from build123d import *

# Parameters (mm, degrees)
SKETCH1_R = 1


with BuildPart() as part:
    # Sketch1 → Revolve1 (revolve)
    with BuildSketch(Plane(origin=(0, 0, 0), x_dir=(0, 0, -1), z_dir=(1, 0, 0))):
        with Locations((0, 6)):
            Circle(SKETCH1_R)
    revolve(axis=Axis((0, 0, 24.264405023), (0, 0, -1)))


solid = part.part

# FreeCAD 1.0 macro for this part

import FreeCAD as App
import Part
import Sketcher

V = App.Vector
Q = App.Units.Quantity

doc = App.newDocument("Part")
body = doc.addObject("PartDesign::Body", "Body")

# Sketch on YZ plane
sketch1 = body.newObject("Sketcher::SketchObject", "Sketch")
sketch1.AttachmentSupport = (doc.getObject("YZ_Plane"), [""])
sketch1.MapMode = "FlatFace"
sketch1.addGeometry(Part.Circle(V(6, 0, 0), V(0, 0, 1), 1), False)
sketch1.addConstraint([
    Sketcher.Constraint("PointOnObject", 0, 3, -1),
    Sketcher.Constraint("Diameter", 0, Q("2 mm")),
    Sketcher.Constraint("DistanceX", -1, 1, 0, 3, Q("6 mm")),
])
revolution = body.newObject("PartDesign::Revolution", "Revolution")
revolution.Profile = sketch1
revolution.ReferenceAxis = (sketch1, ["V_Axis"])
revolution.Angle = 360

doc.recompute()
